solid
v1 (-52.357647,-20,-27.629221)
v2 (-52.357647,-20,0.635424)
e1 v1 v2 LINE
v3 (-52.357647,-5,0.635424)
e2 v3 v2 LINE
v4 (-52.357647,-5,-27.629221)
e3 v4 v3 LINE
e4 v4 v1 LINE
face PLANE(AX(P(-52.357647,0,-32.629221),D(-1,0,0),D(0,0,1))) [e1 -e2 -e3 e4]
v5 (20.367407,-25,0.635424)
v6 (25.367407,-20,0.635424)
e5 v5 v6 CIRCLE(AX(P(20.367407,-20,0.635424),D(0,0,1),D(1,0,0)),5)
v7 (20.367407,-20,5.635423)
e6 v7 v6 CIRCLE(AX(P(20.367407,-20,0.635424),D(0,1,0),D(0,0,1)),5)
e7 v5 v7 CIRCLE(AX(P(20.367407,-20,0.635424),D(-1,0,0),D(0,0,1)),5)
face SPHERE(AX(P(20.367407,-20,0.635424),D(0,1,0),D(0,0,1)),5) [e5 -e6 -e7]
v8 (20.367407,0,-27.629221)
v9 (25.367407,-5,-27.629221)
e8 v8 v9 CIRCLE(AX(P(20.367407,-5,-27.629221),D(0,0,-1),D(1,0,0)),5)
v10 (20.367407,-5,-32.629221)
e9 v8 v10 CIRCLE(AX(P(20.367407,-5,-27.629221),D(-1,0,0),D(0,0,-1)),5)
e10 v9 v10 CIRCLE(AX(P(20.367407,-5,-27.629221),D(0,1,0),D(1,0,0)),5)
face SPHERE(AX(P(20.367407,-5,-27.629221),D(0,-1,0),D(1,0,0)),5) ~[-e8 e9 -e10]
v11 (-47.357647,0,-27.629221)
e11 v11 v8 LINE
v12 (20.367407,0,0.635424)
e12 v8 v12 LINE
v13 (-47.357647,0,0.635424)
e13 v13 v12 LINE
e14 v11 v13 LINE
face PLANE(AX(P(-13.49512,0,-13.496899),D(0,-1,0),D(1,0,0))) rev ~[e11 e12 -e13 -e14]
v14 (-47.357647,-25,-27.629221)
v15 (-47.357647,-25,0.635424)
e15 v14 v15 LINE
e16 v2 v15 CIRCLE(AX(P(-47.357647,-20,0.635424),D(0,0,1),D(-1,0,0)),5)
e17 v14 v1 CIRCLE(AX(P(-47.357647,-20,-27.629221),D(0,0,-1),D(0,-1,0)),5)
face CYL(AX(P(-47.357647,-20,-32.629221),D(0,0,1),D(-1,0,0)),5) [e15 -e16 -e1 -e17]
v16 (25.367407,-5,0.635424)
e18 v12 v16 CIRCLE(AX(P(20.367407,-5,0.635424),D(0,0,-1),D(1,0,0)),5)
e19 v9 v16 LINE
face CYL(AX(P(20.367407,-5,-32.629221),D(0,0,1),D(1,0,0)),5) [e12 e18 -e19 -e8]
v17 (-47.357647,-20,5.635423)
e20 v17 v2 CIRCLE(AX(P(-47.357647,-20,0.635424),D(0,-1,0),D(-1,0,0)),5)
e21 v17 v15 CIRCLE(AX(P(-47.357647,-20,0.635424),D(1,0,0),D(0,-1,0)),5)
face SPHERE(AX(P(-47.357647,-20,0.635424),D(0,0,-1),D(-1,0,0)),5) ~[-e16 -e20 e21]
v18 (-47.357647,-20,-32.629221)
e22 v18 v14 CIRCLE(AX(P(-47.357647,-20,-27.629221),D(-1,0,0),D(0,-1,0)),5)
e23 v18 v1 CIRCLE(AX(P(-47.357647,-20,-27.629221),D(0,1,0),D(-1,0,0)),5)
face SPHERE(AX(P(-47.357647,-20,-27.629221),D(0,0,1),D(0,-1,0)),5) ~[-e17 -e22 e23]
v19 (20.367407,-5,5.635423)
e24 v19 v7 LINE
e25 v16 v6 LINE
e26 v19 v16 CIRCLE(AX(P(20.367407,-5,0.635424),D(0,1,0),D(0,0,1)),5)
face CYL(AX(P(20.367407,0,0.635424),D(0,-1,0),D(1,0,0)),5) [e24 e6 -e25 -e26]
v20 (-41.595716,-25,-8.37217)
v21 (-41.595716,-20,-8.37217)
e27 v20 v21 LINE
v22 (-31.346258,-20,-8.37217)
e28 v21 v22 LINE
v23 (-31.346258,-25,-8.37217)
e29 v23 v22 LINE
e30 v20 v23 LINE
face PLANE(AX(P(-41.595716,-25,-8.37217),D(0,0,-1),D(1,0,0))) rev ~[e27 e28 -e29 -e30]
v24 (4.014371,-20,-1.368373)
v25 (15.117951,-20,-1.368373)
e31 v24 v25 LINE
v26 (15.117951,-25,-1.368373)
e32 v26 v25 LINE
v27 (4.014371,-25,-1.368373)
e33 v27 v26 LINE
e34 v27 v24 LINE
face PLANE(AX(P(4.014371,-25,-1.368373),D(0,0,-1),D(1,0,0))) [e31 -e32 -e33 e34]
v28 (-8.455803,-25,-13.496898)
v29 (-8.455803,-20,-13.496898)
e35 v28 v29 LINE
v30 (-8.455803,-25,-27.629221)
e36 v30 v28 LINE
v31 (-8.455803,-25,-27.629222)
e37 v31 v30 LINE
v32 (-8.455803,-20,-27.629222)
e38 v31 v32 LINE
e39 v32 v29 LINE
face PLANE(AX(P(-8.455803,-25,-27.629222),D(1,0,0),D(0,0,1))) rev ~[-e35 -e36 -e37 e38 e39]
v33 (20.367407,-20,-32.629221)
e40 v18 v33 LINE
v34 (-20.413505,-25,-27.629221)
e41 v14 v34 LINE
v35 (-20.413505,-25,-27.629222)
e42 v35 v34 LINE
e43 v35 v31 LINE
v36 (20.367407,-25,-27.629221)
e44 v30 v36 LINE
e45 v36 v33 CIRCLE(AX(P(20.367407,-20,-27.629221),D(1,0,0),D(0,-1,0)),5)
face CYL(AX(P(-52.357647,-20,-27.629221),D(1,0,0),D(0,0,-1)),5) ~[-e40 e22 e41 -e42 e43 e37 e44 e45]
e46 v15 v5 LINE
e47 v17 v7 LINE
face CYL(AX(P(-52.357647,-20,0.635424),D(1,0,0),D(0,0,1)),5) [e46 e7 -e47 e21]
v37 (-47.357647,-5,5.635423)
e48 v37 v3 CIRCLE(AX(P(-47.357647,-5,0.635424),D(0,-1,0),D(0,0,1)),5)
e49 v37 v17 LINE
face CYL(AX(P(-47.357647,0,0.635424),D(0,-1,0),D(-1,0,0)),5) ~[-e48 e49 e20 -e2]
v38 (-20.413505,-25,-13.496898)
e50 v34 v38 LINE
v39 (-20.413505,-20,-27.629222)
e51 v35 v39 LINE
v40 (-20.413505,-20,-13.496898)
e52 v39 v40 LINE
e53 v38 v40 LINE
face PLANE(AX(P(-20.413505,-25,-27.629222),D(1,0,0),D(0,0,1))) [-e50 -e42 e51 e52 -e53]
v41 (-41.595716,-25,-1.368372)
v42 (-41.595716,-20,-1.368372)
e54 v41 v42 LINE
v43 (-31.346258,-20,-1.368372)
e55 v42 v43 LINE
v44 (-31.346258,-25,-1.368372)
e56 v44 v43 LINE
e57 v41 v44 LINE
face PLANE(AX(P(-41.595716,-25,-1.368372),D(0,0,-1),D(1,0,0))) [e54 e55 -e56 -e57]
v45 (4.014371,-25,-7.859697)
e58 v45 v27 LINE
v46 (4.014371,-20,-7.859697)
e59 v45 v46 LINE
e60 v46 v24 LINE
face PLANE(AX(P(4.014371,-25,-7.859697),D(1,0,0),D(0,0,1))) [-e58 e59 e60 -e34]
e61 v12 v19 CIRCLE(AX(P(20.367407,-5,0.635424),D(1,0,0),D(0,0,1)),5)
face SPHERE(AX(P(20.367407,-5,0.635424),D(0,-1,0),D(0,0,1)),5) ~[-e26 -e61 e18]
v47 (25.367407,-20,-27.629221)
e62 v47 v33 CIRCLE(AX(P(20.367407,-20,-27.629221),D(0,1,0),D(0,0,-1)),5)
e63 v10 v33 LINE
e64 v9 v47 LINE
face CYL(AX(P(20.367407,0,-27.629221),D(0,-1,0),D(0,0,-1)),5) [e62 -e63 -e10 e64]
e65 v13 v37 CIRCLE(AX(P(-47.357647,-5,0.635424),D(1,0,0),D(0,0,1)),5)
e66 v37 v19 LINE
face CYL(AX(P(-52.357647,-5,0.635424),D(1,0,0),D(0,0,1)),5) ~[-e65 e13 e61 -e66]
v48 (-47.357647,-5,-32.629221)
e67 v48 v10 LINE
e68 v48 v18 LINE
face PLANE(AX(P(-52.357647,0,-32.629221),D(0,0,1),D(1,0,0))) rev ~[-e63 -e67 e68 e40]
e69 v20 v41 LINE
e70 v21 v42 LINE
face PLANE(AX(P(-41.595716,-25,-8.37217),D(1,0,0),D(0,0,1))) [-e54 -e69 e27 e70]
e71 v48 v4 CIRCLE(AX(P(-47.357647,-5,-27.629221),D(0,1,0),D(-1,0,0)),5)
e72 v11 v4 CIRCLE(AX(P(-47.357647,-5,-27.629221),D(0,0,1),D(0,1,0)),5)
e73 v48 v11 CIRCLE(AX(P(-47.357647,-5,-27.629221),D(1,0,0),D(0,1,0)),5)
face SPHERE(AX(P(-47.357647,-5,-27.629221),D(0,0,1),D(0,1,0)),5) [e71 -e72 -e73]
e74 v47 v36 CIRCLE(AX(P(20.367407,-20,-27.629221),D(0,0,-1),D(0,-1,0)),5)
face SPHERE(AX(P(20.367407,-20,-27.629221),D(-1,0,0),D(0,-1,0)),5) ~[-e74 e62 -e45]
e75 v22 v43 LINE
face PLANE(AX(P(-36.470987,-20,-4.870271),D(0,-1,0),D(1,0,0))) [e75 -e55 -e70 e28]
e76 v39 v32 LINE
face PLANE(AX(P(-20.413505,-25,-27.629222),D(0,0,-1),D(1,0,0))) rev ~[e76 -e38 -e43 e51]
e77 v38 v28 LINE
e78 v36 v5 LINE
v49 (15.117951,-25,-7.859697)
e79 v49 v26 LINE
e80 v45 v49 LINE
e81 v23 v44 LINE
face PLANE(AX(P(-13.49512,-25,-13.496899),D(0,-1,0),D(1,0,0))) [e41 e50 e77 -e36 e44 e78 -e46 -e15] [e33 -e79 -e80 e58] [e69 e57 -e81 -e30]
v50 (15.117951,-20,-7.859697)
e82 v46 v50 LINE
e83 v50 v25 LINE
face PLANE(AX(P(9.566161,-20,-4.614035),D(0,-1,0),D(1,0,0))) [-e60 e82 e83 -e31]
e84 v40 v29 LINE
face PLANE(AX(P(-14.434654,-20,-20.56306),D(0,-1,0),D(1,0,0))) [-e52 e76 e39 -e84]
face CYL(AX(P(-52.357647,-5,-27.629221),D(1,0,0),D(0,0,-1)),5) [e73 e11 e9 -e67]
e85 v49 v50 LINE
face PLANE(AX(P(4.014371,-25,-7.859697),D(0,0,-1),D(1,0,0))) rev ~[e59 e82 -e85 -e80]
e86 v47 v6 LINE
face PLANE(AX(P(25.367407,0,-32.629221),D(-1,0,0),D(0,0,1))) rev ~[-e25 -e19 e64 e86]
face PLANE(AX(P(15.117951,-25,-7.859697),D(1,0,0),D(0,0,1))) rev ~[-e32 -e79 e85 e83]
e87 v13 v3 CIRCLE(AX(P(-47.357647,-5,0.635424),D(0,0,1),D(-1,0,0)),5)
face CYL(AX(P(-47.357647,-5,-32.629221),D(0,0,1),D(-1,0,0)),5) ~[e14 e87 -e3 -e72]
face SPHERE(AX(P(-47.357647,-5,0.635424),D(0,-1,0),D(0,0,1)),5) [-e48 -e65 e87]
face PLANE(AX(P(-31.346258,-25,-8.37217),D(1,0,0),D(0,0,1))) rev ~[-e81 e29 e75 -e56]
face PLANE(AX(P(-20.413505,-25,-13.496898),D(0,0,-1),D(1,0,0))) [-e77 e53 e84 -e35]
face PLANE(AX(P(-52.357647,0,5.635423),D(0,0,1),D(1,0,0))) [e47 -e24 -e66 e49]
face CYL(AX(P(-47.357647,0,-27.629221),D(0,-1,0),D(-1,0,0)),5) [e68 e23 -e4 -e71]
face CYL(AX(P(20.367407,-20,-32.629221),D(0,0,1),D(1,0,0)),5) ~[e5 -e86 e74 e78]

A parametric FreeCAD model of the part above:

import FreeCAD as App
import Part
import Sketcher
from FreeCAD import Vector
Q = App.Units.Quantity


def add_polygon(sketch, points):
    """Adds a closed chain of lines whose ends are joined by coincident constraints."""
    first, n = sketch.GeometryCount, len(points)
    for a, b in zip(points, points[1:] + points[:1]):
        sketch.addGeometry(Part.LineSegment(App.Vector(*a, 0), App.Vector(*b, 0)), False)
    for i in range(n):
        sketch.addConstraint(Sketcher.Constraint("Coincident", first + i, 2, first + (i + 1) % n, 1))

doc = App.newDocument("Part")
body = doc.addObject("PartDesign::Body", "Body")

# Sketch on XZ plane
sketch1 = doc.addObject("Sketcher::SketchObject", "Sketch")
body.addObject(sketch1)
sketch1.AttachmentSupport = (doc.XZ_Plane, [""])
sketch1.MapMode = "FlatFace"
add_polygon(sketch1, [(-52.357647, 5.635423), (-52.357647, -32.629221), (25.367407, -32.629221), (25.367407, 5.635423)])  # lines 0-3
sketch1.addConstraint(Sketcher.Constraint("Vertical", 0))
sketch1.addConstraint(Sketcher.Constraint("Horizontal", 1))
sketch1.addConstraint(Sketcher.Constraint("Vertical", 2))
sketch1.addConstraint(Sketcher.Constraint("Horizontal", 3))
sketch1.addConstraint(Sketcher.Constraint("DistanceX", 1, 1, 1, 2, Q("77.725055 mm")))
sketch1.addConstraint(Sketcher.Constraint("DistanceY", 0, 2, 0, 1, Q("38.264645 mm")))
sketch1.addConstraint(Sketcher.Constraint("DistanceY", 0, 2, -1, 1, Q("32.629221 mm")))
sketch1.addConstraint(Sketcher.Constraint("DistanceX", 0, 2, -1, 1, Q("52.357647 mm")))
pad1 = doc.addObject("PartDesign::Pad", "Pad")
body.addObject(pad1)
pad1.Profile = sketch1
pad1.Length = 25
doc.recompute()

fillet = doc.addObject("PartDesign::Fillet", "Fillet")
body.addObject(fillet)
fillet.Base = (pad1, ["Edge1"])
fillet.UseAllEdges = True
fillet.Radius = 5

# Sketch on XZ plane
sketch2 = doc.addObject("Sketcher::SketchObject", "Sketch001")
body.addObject(sketch2)
sketch2.AttachmentSupport = (doc.XZ_Plane, [""])
sketch2.MapMode = "FlatFace"
sketch2.AttachmentOffset = App.Placement(Vector(0, 0, 25), App.Rotation())
add_polygon(sketch2, [(-41.595716, -1.368372), (-41.595716, -8.37217), (-31.346258, -8.37217), (-31.346258, -1.368372)])  # lines 0-3
add_polygon(sketch2, [(4.014371, -1.368373), (4.014371, -7.859697), (15.117951, -7.859697), (15.117951, -1.368373)])  # lines 4-7
add_polygon(sketch2, [(-20.413505, -13.496898), (-20.413505, -27.629222), (-8.455803, -27.629222), (-8.455803, -13.496898)])  # lines 8-11
sketch2.addConstraint(Sketcher.Constraint("Vertical", 0))
sketch2.addConstraint(Sketcher.Constraint("Horizontal", 1))
sketch2.addConstraint(Sketcher.Constraint("Vertical", 2))
sketch2.addConstraint(Sketcher.Constraint("Horizontal", 3))
sketch2.addConstraint(Sketcher.Constraint("Vertical", 4))
sketch2.addConstraint(Sketcher.Constraint("Horizontal", 5))
sketch2.addConstraint(Sketcher.Constraint("Vertical", 6))
sketch2.addConstraint(Sketcher.Constraint("Horizontal", 7))
sketch2.addConstraint(Sketcher.Constraint("Vertical", 8))
sketch2.addConstraint(Sketcher.Constraint("Horizontal", 9))
sketch2.addConstraint(Sketcher.Constraint("Vertical", 10))
sketch2.addConstraint(Sketcher.Constraint("Horizontal", 11))
sketch2.addConstraint(Sketcher.Constraint("Horizontal", 3, 2, 6, 2))
sketch2.addConstraint(Sketcher.Constraint("DistanceX", 1, 1, 1, 2, Q("10.249458 mm")))
sketch2.addConstraint(Sketcher.Constraint("DistanceX", 5, 1, 5, 2, Q("11.10358 mm")))
sketch2.addConstraint(Sketcher.Constraint("DistanceY", 10, 2, 4, 2, Q("5.637201 mm")))
sketch2.addConstraint(Sketcher.Constraint("DistanceX", 9, 1, 9, 2, Q("11.957702 mm")))
sketch2.addConstraint(Sketcher.Constraint("DistanceY", 0, 2, 0, 1, Q("7.003797 mm")))
sketch2.addConstraint(Sketcher.Constraint("DistanceY", 4, 2, 4, 1, Q("6.491324 mm")))
sketch2.addConstraint(Sketcher.Constraint("DistanceY", 8, 2, 8, 1, Q("14.132324 mm")))
sketch2.addConstraint(Sketcher.Constraint("DistanceY", 0, 2, -1, 1, Q("8.37217 mm")))
sketch2.addConstraint(Sketcher.Constraint("DistanceX", -1, 1, 4, 2, Q("4.014371 mm")))
sketch2.addConstraint(Sketcher.Constraint("DistanceX", 1, 2, 4, 2, Q("35.360629 mm")))
sketch2.addConstraint(Sketcher.Constraint("DistanceX", 0, 2, 8, 2, Q("21.182211 mm")))
pocket1 = doc.addObject("PartDesign::Pocket", "Pocket")
body.addObject(pocket1)
pocket1.Profile = sketch2
pocket1.Length = 5

doc.recompute()
